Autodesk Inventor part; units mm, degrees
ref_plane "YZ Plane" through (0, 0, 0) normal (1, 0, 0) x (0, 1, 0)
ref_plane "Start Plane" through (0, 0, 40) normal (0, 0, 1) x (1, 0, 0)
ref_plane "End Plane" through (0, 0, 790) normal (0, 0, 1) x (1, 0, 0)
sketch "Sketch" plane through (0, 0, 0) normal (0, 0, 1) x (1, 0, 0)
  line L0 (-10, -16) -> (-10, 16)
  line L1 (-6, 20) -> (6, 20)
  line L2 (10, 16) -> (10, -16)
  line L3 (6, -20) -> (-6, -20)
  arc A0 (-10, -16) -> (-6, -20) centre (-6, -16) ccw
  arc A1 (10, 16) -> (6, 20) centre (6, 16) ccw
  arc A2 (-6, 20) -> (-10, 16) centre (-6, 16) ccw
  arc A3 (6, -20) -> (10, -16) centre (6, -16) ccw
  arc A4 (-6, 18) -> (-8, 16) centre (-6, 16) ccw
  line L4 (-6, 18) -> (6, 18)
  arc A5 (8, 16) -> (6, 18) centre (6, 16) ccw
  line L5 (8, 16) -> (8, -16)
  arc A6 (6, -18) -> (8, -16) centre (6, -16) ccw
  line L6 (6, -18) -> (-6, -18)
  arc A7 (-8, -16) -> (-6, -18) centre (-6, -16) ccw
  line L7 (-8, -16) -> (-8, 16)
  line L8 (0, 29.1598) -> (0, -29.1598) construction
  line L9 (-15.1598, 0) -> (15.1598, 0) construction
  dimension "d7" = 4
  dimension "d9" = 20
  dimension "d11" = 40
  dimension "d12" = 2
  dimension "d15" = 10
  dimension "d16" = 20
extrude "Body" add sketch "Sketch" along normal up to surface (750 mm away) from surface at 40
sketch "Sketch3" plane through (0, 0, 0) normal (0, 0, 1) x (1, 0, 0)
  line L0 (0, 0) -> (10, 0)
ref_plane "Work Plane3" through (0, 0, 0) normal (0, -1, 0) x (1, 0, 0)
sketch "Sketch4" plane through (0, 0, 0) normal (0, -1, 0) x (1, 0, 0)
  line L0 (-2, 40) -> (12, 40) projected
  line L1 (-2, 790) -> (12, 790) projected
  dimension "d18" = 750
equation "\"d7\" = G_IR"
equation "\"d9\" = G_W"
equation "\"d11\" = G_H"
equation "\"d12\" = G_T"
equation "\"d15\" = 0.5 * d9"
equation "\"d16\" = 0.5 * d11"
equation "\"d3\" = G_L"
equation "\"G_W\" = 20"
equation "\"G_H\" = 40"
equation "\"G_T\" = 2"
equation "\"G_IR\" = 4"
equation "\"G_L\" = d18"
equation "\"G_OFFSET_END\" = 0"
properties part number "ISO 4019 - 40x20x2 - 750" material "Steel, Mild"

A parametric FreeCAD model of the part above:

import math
import FreeCAD as App
import Part
import Sketcher

V = App.Vector
Q = App.Units.Quantity

doc = App.newDocument("Part")
body = doc.addObject("PartDesign::Body", "Body")

sketch1 = body.newObject("Sketcher::SketchObject", "Sketch")
sketch1.AttachmentSupport = (doc.getObject("XY_Plane"), [""])
sketch1.MapMode = "FlatFace"
sketch1.AttachmentOffset = App.Placement(V(0, 0, 40), App.Rotation())
sketch1.addGeometry([
    Part.LineSegment(V(-10, 16, 0), V(-10, -16, 0)),
    Part.ArcOfCircle(Part.Circle(V(-6, -16, 0), V(0, 0, 1), 4), math.radians(180), math.radians(270)),
    Part.LineSegment(V(-6, -20, 0), V(6, -20, 0)),
    Part.ArcOfCircle(Part.Circle(V(6, -16, 0), V(0, 0, 1), 4), math.radians(-90), math.radians(0)),
    Part.LineSegment(V(10, -16, 0), V(10, 16, 0)),
    Part.ArcOfCircle(Part.Circle(V(6, 16, 0), V(0, 0, 1), 4), math.radians(0), math.radians(90)),
    Part.LineSegment(V(6, 20, 0), V(-6, 20, 0)),
    Part.ArcOfCircle(Part.Circle(V(-6, 16, 0), V(0, 0, 1), 4), math.radians(90), math.radians(180)),
    Part.ArcOfCircle(Part.Circle(V(-6, 16, 0), V(0, 0, 1), 2), math.radians(90), math.radians(180)),
    Part.LineSegment(V(-6, 18, 0), V(6, 18, 0)),
    Part.ArcOfCircle(Part.Circle(V(6, 16, 0), V(0, 0, 1), 2), math.radians(0), math.radians(90)),
    Part.LineSegment(V(8, 16, 0), V(8, -16, 0)),
    Part.ArcOfCircle(Part.Circle(V(6, -16, 0), V(0, 0, 1), 2), math.radians(-90), math.radians(0)),
    Part.LineSegment(V(6, -18, 0), V(-6, -18, 0)),
    Part.ArcOfCircle(Part.Circle(V(-6, -16, 0), V(0, 0, 1), 2), math.radians(180), math.radians(270)),
    Part.LineSegment(V(-8, -16, 0), V(-8, 16, 0)),
], False)
sketch1.addConstraint([
    Sketcher.Constraint("Tangent", 0, 2, 1, 1),
    Sketcher.Constraint("Tangent", 1, 2, 2, 1),
    Sketcher.Constraint("Tangent", 2, 2, 3, 1),
    Sketcher.Constraint("Tangent", 3, 2, 4, 1),
    Sketcher.Constraint("Tangent", 4, 2, 5, 1),
    Sketcher.Constraint("Tangent", 5, 2, 6, 1),
    Sketcher.Constraint("Tangent", 6, 2, 7, 1),
    Sketcher.Constraint("Tangent", 7, 2, 0, 1),
    Sketcher.Constraint("Tangent", 8, 1, 9, 1),
    Sketcher.Constraint("Tangent", 9, 2, 10, 2),
    Sketcher.Constraint("Tangent", 10, 1, 11, 1),
    Sketcher.Constraint("Tangent", 11, 2, 12, 2),
    Sketcher.Constraint("Tangent", 12, 1, 13, 1),
    Sketcher.Constraint("Tangent", 13, 2, 14, 2),
    Sketcher.Constraint("Tangent", 14, 1, 15, 1),
    Sketcher.Constraint("Tangent", 15, 2, 8, 2),
    Sketcher.Constraint("Vertical", 0),
    Sketcher.Constraint("Horizontal", 2),
    Sketcher.Constraint("Vertical", 4),
    Sketcher.Constraint("Horizontal", 6),
    Sketcher.Constraint("Horizontal", 9),
    Sketcher.Constraint("Vertical", 11),
    Sketcher.Constraint("Horizontal", 13),
    Sketcher.Constraint("Vertical", 15),
    Sketcher.Constraint("Coincident", 8, 3, 7, 3),
    Sketcher.Constraint("Coincident", 10, 3, 5, 3),
    Sketcher.Constraint("Coincident", 12, 3, 3, 3),
    Sketcher.Constraint("Equal", 1, 3),
    Sketcher.Constraint("Equal", 3, 5),
    Sketcher.Constraint("Equal", 5, 7),
    Sketcher.Constraint("Equal", 12, 14),
    Sketcher.Constraint("Symmetric", 1, 3, 5, 3, -1, 1),
    Sketcher.Constraint("Radius", 1, Q("4 mm")),
    Sketcher.Constraint("Radius", 8, Q("2 mm")),
    Sketcher.Constraint("DistanceX", 0, 2, -1, 1, Q("10 mm")),
    Sketcher.Constraint("DistanceY", 1, 2, -1, 1, Q("20 mm")),
])
pad1 = body.newObject("PartDesign::Pad", "Pad")
pad1.Profile = sketch1
pad1.Length = 750

doc.recompute()
